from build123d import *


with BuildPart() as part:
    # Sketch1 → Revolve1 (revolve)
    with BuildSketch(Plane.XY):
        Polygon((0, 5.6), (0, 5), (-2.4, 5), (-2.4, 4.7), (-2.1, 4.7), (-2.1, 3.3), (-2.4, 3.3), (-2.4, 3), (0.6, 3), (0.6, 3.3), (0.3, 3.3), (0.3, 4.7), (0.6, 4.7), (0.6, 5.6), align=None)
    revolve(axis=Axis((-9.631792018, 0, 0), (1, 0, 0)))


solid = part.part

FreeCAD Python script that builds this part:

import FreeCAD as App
import Part
import Sketcher

V = App.Vector
Q = App.Units.Quantity


def add_polygon(sketch, points):
    """Adds a closed chain of lines whose ends are joined by coincident constraints."""
    first, n = sketch.GeometryCount, len(points)
    for a, b in zip(points, points[1:] + points[:1]):
        sketch.addGeometry(Part.LineSegment(App.Vector(*a, 0), App.Vector(*b, 0)), False)
    for i in range(n):
        sketch.addConstraint(Sketcher.Constraint("Coincident", first + i, 2, first + (i + 1) % n, 1))

doc = App.newDocument("Part")
body = doc.addObject("PartDesign::Body", "Body")

# Sketch on XY plane
sketch1 = body.newObject("Sketcher::SketchObject", "Sketch")
sketch1.AttachmentSupport = (doc.getObject("XY_Plane"), [""])
sketch1.MapMode = "FlatFace"
add_polygon(sketch1, [(0, 5.6), (0, 5), (-2.4, 5), (-2.4, 4.7), (-2.1, 4.7), (-2.1, 3.3), (-2.4, 3.3), (-2.4, 3), (0.6, 3), (0.6, 3.3), (0.3, 3.3), (0.3, 4.7), (0.6, 4.7), (0.6, 5.6)])  # lines 0-13
sketch1.addConstraint(Sketcher.Constraint("Vertical", 0))
sketch1.addConstraint(Sketcher.Constraint("Horizontal", 1))
sketch1.addConstraint(Sketcher.Constraint("Vertical", 2))
sketch1.addConstraint(Sketcher.Constraint("Horizontal", 3))
sketch1.addConstraint(Sketcher.Constraint("Vertical", 4))
sketch1.addConstraint(Sketcher.Constraint("Horizontal", 5))
sketch1.addConstraint(Sketcher.Constraint("Vertical", 6))
sketch1.addConstraint(Sketcher.Constraint("Horizontal", 7))
sketch1.addConstraint(Sketcher.Constraint("Vertical", 8))
sketch1.addConstraint(Sketcher.Constraint("Horizontal", 9))
sketch1.addConstraint(Sketcher.Constraint("Vertical", 10))
sketch1.addConstraint(Sketcher.Constraint("Horizontal", 11))
sketch1.addConstraint(Sketcher.Constraint("Vertical", 12))
sketch1.addConstraint(Sketcher.Constraint("Horizontal", 13))
sketch1.addConstraint(Sketcher.Constraint("PointOnObject", 0, 2, -2))
sketch1.addConstraint(Sketcher.Constraint("Horizontal", 5, 2, 8, 2))
sketch1.addConstraint(Sketcher.Constraint("Horizontal", 3, 2, 10, 2))
sketch1.addConstraint(Sketcher.Constraint("Vertical", 2, 2, 5, 2))
sketch1.addConstraint(Sketcher.Constraint("Vertical", 8, 2, 11, 2))
sketch1.addConstraint(Sketcher.Constraint("Equal", 5, 9))
sketch1.addConstraint(Sketcher.Constraint("Equal", 13, 0))
sketch1.addConstraint(Sketcher.Constraint("Equal", 11, 2))
sketch1.addConstraint(Sketcher.Constraint("Equal", 2, 6))
sketch1.addConstraint(Sketcher.Constraint("DistanceX", 7, 1, 7, 2, Q("3 mm")))
sketch1.addConstraint(Sketcher.Constraint("DistanceX", 1, 2, 1, 1, Q("2.4 mm")))
sketch1.addConstraint(Sketcher.Constraint("DistanceX", 3, 1, 3, 2, Q("0.3 mm")))
sketch1.addConstraint(Sketcher.Constraint("DistanceY", 4, 2, 4, 1, Q("1.4 mm")))
sketch1.addConstraint(Sketcher.Constraint("DistanceY", -1, 1, 0, 2, Q("5 mm")))
revolution = body.newObject("PartDesign::Revolution", "Revolution")
revolution.Profile = sketch1
revolution.ReferenceAxis = (sketch1, ["H_Axis"])
revolution.Angle = 360

doc.recompute()
